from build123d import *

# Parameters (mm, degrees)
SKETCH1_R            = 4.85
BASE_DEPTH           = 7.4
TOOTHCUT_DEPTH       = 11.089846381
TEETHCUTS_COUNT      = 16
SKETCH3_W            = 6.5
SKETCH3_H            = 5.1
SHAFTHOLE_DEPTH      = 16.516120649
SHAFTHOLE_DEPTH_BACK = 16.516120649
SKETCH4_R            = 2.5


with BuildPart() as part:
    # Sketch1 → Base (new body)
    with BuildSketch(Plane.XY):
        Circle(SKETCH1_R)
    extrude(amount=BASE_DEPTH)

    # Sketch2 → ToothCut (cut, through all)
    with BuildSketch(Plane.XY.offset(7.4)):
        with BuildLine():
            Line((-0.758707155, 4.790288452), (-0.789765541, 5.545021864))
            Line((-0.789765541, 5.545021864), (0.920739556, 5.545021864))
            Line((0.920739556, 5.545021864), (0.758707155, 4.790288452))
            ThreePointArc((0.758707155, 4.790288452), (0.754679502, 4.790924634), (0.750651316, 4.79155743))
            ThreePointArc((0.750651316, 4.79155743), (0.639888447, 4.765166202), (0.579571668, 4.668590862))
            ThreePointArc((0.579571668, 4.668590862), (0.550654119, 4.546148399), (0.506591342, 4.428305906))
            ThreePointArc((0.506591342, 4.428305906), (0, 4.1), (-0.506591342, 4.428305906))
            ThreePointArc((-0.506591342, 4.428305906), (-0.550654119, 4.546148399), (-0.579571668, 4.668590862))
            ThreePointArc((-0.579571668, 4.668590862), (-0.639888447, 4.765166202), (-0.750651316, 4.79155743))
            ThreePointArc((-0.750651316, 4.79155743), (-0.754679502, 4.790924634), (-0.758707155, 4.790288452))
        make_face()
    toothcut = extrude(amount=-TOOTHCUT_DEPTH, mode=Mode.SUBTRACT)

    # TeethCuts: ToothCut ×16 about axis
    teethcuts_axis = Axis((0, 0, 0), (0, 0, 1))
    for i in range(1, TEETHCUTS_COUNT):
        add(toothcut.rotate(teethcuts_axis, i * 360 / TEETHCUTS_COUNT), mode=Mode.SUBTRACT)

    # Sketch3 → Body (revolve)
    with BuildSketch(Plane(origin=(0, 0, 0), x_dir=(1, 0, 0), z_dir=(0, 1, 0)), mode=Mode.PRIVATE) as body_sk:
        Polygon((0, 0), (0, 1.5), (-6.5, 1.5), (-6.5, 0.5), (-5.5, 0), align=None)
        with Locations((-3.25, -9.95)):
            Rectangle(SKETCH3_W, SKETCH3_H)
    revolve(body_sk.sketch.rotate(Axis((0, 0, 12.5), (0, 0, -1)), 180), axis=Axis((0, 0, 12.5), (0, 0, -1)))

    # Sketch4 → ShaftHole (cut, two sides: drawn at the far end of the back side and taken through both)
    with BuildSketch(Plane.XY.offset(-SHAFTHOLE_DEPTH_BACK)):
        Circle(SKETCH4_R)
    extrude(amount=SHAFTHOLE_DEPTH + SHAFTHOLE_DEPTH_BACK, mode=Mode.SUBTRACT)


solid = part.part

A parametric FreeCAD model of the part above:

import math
import FreeCAD as App
import Part
import Sketcher

V = App.Vector


def add_polygon(sketch, points):
    """Adds a closed chain of lines whose ends are joined by coincident constraints."""
    first, n = sketch.GeometryCount, len(points)
    for a, b in zip(points, points[1:] + points[:1]):
        sketch.addGeometry(Part.LineSegment(App.Vector(*a, 0), App.Vector(*b, 0)), False)
    for i in range(n):
        sketch.addConstraint(Sketcher.Constraint("Coincident", first + i, 2, first + (i + 1) % n, 1))

doc = App.newDocument("Part")
body = doc.addObject("PartDesign::Body", "Body")

# Sketch on XY plane
sketch1 = doc.addObject("Sketcher::SketchObject", "Sketch")
body.addObject(sketch1)
sketch1.AttachmentSupport = (doc.XY_Plane, [""])
sketch1.MapMode = "FlatFace"
sketch1.addGeometry(Part.Circle(V(0, 0, 0), V(0, 0, 1), 4.85), False)
sketch1.addConstraint([
    Sketcher.Constraint("Coincident", 0, 3, -1, 1),
    Sketcher.Constraint("Diameter", 0, 9.7),
])
pad1 = doc.addObject("PartDesign::Pad", "Pad")
body.addObject(pad1)
pad1.Profile = sketch1
pad1.Length = 7.4

# Sketch on XY plane
sketch2 = doc.addObject("Sketcher::SketchObject", "Sketch001")
body.addObject(sketch2)
sketch2.AttachmentSupport = (doc.XY_Plane, [""])
sketch2.MapMode = "FlatFace"
sketch2.AttachmentOffset = App.Placement(V(0, 0, 7.4), App.Rotation())
sketch2.addGeometry([
    Part.LineSegment(V(-0.789766, 5.545022, 0), V(-0.758707, 4.790288, 0)),  # 0
    Part.ArcOfCircle(Part.Circle(V(0.000109, -0.000692, 0), V(0, 0, 1), 4.8507), math.radians(98.903667), math.radians(98.999995)),  # 1
    Part.ArcOfCircle(Part.Circle(V(-0.727435, 4.643365, 0), V(0, 0, 1), 0.15), math.radians(9.681602), math.radians(98.903659)),  # 2
    Part.ArcOfCircle(Part.Circle(V(0.406186, 4.836764, 0), V(0, 0, 1), 1), math.radians(-170.318397), math.radians(-155.892005)),  # 3
    Part.ArcOfCircle(Part.Circle(V(0, 4.655, 0), V(0, 0, 1), 0.555), math.radians(-155.892005), math.radians(-24.107995)),  # 4
    Part.ArcOfCircle(Part.Circle(V(-0.406186, 4.836764, 0), V(0, 0, 1), 1), math.radians(-24.107995), math.radians(-9.681603)),  # 5
    Part.ArcOfCircle(Part.Circle(V(0.727435, 4.643365, 0), V(0, 0, 1), 0.15), math.radians(81.096341), math.radians(170.318398)),  # 6
    Part.ArcOfCircle(Part.Circle(V(-0.000109, -0.000692, 0), V(0, 0, 1), 4.8507), math.radians(81.000005), math.radians(81.096333)),  # 7
    Part.LineSegment(V(0.758707, 4.790288, 0), V(0.92074, 5.545022, 0)),  # 8
    Part.LineSegment(V(0.92074, 5.545022, 0), V(-0.789766, 5.545022, 0)),  # 9
], False)
sketch2.addConstraint([
    Sketcher.Constraint("Coincident", 0, 2, 1, 2),
    Sketcher.Constraint("Tangent", 1, 1, 2, 2),
    Sketcher.Constraint("Tangent", 2, 1, 3, 1),
    Sketcher.Constraint("Tangent", 3, 2, 4, 1),
    Sketcher.Constraint("Tangent", 4, 2, 5, 1),
    Sketcher.Constraint("Tangent", 5, 2, 6, 2),
    Sketcher.Constraint("Tangent", 6, 1, 7, 2),
    Sketcher.Constraint("Coincident", 7, 1, 8, 1),
    Sketcher.Constraint("Coincident", 8, 2, 9, 1),
    Sketcher.Constraint("Coincident", 9, 2, 0, 1),
    Sketcher.Constraint("Horizontal", 9),
    Sketcher.Constraint("Equal", 3, 5),
    Sketcher.Constraint("Equal", 2, 6),
    Sketcher.Constraint("Equal", 1, 7),
    Sketcher.Constraint("Symmetric", 3, 3, 5, 3, -2),
    Sketcher.Constraint("Symmetric", 1, 3, 7, 3, -2),
    Sketcher.Constraint("Horizontal", 0, 2, 7, 1),
    Sketcher.Constraint("Radius", 3, 1.0),
    Sketcher.Constraint("Radius", 2, 0.15),
    Sketcher.Constraint("Radius", 4, 0.555),
    Sketcher.Constraint("Radius", 1, 4.8507),
    Sketcher.Constraint("DistanceY", -1, 1, 4, 3, 4.655),
    Sketcher.Constraint("DistanceY", 2, 3, 3, 3, 0.193399),
    Sketcher.Constraint("Distance", 8, 0.771931),
    Sketcher.Constraint("DistanceX", 9, 2, 9, 1, 1.710505),
    Sketcher.Constraint("DistanceX", -1, 1, 1, 3, 0.000109),
    Sketcher.Constraint("DistanceY", 1, 3, -1, 1, 0.000692),
    Sketcher.Constraint("DistanceY", -1, 1, 0, 2, 4.790288),
    Sketcher.Constraint("DistanceX", -1, 1, 8, 2, 0.92074),
])
pocket1 = doc.addObject("PartDesign::Pocket", "Pocket")
body.addObject(pocket1)
pocket1.Profile = sketch2
pocket1.Type = "ThroughAll"
doc.recompute()

polarpattern = doc.addObject("PartDesign::PolarPattern", "PolarPattern")
body.addObject(polarpattern)
polarpattern.Originals = [pocket1]
polarpattern.Axis = (doc.Z_Axis, [""])
polarpattern.Angle = 360
polarpattern.Occurrences = 16
body.Tip = polarpattern

# Sketch on XZ plane
sketch3 = doc.addObject("Sketcher::SketchObject", "Sketch002")
body.addObject(sketch3)
sketch3.AttachmentSupport = (doc.XZ_Plane, [""])
sketch3.MapMode = "FlatFace"
add_polygon(sketch3, [(0, 0), (0, -1.5), (-6.5, -1.5), (-6.5, -0.5), (-5.5, 0)])  # lines 0-4
add_polygon(sketch3, [(-6.5, 7.4), (-6.5, 12.5), (0, 12.5), (0, 7.4)])  # lines 5-8
sketch3.addConstraint([
    Sketcher.Constraint("Vertical", 0),
    Sketcher.Constraint("Horizontal", 1),
    Sketcher.Constraint("Vertical", 2),
    Sketcher.Constraint("Horizontal", 4),
    Sketcher.Constraint("Vertical", 5),
    Sketcher.Constraint("Horizontal", 6),
    Sketcher.Constraint("Vertical", 7),
    Sketcher.Constraint("Horizontal", 8),
    Sketcher.Constraint("Coincident", 4, 2, -1, 1),
    Sketcher.Constraint("PointOnObject", 6, 2, -2),
    Sketcher.Constraint("Vertical", 2, 2, 5, 2),
    Sketcher.Constraint("DistanceY", 2, 1, 2, 2, 1.0),
    Sketcher.Constraint("DistanceX", 1, 2, 1, 1, 6.5),
    Sketcher.Constraint("DistanceX", 4, 1, 4, 2, 5.5),
    Sketcher.Constraint("DistanceY", 0, 2, 0, 1, 1.5),
    Sketcher.Constraint("DistanceY", 5, 1, 5, 2, 5.1),
    Sketcher.Constraint("DistanceY", 2, 2, 5, 2, 13.0),
])
revolution = doc.addObject("PartDesign::Revolution", "Revolution")
body.addObject(revolution)
revolution.Profile = sketch3
revolution.ReferenceAxis = (sketch3, ["V_Axis"])
revolution.Angle = 360

# Sketch on XY plane
sketch4 = doc.addObject("Sketcher::SketchObject", "Sketch003")
body.addObject(sketch4)
sketch4.AttachmentSupport = (doc.XY_Plane, [""])
sketch4.MapMode = "FlatFace"
sketch4.addGeometry(Part.Circle(V(0, 0, 0), V(0, 0, 1), 2.5), False)
sketch4.addConstraint([
    Sketcher.Constraint("Coincident", 0, 3, -1, 1),
    Sketcher.Constraint("Diameter", 0, 5.0),
])
pocket2 = doc.addObject("PartDesign::Pocket", "Pocket001")
body.addObject(pocket2)
pocket2.Profile = sketch4
pocket2.Type = "ThroughAll"
pocket2.Midplane = True

doc.recompute()
